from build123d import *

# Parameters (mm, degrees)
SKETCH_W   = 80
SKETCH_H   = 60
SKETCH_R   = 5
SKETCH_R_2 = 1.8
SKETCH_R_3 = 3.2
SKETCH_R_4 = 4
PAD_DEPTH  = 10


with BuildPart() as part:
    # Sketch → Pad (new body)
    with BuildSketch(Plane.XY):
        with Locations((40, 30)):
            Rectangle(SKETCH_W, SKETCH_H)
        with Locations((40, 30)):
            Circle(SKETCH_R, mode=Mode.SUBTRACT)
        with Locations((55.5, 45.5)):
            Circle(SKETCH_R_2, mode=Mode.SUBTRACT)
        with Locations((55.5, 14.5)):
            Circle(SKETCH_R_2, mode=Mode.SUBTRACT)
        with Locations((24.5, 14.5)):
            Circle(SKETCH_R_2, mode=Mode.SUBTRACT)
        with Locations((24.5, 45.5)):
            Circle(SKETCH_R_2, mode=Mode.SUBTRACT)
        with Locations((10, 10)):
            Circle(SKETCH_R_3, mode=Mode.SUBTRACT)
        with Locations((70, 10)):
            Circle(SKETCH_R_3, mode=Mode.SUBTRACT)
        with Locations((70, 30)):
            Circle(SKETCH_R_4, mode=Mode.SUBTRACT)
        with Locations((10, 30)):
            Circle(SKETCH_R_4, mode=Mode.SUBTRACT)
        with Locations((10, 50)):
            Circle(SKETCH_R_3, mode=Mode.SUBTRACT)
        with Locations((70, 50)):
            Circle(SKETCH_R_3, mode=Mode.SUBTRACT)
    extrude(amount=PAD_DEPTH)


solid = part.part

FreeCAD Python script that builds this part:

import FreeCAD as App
import Part
import Sketcher

V = App.Vector

doc = App.newDocument("Part")
params = doc.addObject("Spreadsheet::Sheet", "Params")
for row, (alias, value) in enumerate([
    ("sketch1_diameter", "8 mm"),
    ("sketch1_diameter2", "10 mm"),
    ("sketch1_diameter3", "6.4 mm"),
    ("sketch1_diameter4", "3.6 mm"),
    ("sketch1_width", "80 mm"),
    ("pad1_length", "10 mm"),
], start=1):
    params.set(f"A{row}", alias)
    params.set(f"B{row}", "=" + value)
    params.setAlias(f"B{row}", alias)

body = doc.addObject("PartDesign::Body", "Body")

sketch1 = body.newObject("Sketcher::SketchObject", "Sketch")
sketch1.AttachmentSupport = (doc.getObject("XY_Plane"), [""])
sketch1.MapMode = "FlatFace"
sketch1.addGeometry([
    Part.LineSegment(V(0, 60, 0), V(0, 0, 0)),
    Part.LineSegment(V(0, 0, 0), V(80, 0, 0)),
    Part.LineSegment(V(80, 0, 0), V(80, 60, 0)),
    Part.LineSegment(V(80, 60, 0), V(0, 60, 0)),
    Part.Circle(V(10, 10, 0), V(0, 0, 1), 3.2),
    Part.Circle(V(24.5, 14.5, 0), V(0, 0, 1), 1.8),
    Part.Circle(V(55.5, 14.5, 0), V(0, 0, 1), 1.8),
    Part.Circle(V(70, 10, 0), V(0, 0, 1), 3.2),
    Part.Circle(V(10, 30, 0), V(0, 0, 1), 4),
    Part.Circle(V(10, 50, 0), V(0, 0, 1), 3.2),
    Part.Circle(V(24.5, 45.5, 0), V(0, 0, 1), 1.8),
    Part.Circle(V(40, 30, 0), V(0, 0, 1), 5),
    Part.Circle(V(70, 30, 0), V(0, 0, 1), 4),
    Part.Circle(V(55.5, 45.5, 0), V(0, 0, 1), 1.8),
    Part.Circle(V(70, 50, 0), V(0, 0, 1), 3.2),
], False)
sketch1.addConstraint([
    Sketcher.Constraint("Coincident", 0, 2, 1, 1),
    Sketcher.Constraint("Coincident", 1, 2, 2, 1),
    Sketcher.Constraint("Coincident", 2, 2, 3, 1),
    Sketcher.Constraint("Coincident", 3, 2, 0, 1),
    Sketcher.Constraint("Vertical", 0),
    Sketcher.Constraint("Horizontal", 1),
    Sketcher.Constraint("Vertical", 2),
    Sketcher.Constraint("Horizontal", 3),
    Sketcher.Constraint("Coincident", 0, 2, -1, 1),
    Sketcher.Constraint("Equal", 5, 6),
    Sketcher.Constraint("Equal", 4, 7),
    Sketcher.Constraint("Equal", 7, 9),
    Sketcher.Constraint("Equal", 6, 10),
    Sketcher.Constraint("Equal", 8, 12),
    Sketcher.Constraint("Equal", 10, 13),
    Sketcher.Constraint("Equal", 9, 14),
    Sketcher.Constraint("Horizontal", 5, 3, 6, 3),
    Sketcher.Constraint("Horizontal", 4, 3, 7, 3),
    Sketcher.Constraint("Horizontal", 8, 3, 11, 3),
    Sketcher.Constraint("Horizontal", 11, 3, 12, 3),
    Sketcher.Constraint("Horizontal", 10, 3, 13, 3),
    Sketcher.Constraint("Horizontal", 9, 3, 14, 3),
    Sketcher.Constraint("Vertical", 4, 3, 8, 3),
    Sketcher.Constraint("Vertical", 8, 3, 9, 3),
    Sketcher.Constraint("Vertical", 5, 3, 10, 3),
    Sketcher.Constraint("Vertical", 7, 3, 12, 3),
    Sketcher.Constraint("Vertical", 6, 3, 13, 3),
    Sketcher.Constraint("Vertical", 12, 3, 14, 3),
    Sketcher.Constraint("Diameter", 8, 8.0),
    Sketcher.Constraint("Diameter", 11, 10.0),
    Sketcher.Constraint("Diameter", 4, 6.4),
    Sketcher.Constraint("Diameter", 5, 3.6),
    Sketcher.Constraint("DistanceX", 1, 1, 1, 2, 80.0),
    Sketcher.Constraint("DistanceY", 0, 2, 0, 1, 60.0),
    Sketcher.Constraint("DistanceX", -1, 1, 4, 3, 10.0),
    Sketcher.Constraint("DistanceY", -1, 1, 4, 3, 10.0),
    Sketcher.Constraint("DistanceX", -1, 1, 7, 3, 70.0),
    Sketcher.Constraint("DistanceY", -1, 1, 8, 3, 30.0),
    Sketcher.Constraint("DistanceY", -1, 1, 9, 3, 50.0),
    Sketcher.Constraint("DistanceX", -1, 1, 11, 3, 40.0),
    Sketcher.Constraint("DistanceX", 5, 3, 6, 3, 31.0),
    Sketcher.Constraint("DistanceY", 5, 3, 10, 3, 31.0),
    Sketcher.Constraint("DistanceX", -1, 1, 5, 3, 24.5),
    Sketcher.Constraint("DistanceY", -1, 1, 5, 3, 14.5),
])
sketch1.setExpression("Constraints[28]", "Params.sketch1_diameter")
sketch1.setExpression("Constraints[29]", "Params.sketch1_diameter2")
sketch1.setExpression("Constraints[30]", "Params.sketch1_diameter3")
sketch1.setExpression("Constraints[31]", "Params.sketch1_diameter4")
sketch1.setExpression("Constraints[32]", "Params.sketch1_width")
pad1 = body.newObject("PartDesign::Pad", "Pad")
pad1.Profile = sketch1
pad1.setExpression("Length", "Params.pad1_length")

doc.recompute()
